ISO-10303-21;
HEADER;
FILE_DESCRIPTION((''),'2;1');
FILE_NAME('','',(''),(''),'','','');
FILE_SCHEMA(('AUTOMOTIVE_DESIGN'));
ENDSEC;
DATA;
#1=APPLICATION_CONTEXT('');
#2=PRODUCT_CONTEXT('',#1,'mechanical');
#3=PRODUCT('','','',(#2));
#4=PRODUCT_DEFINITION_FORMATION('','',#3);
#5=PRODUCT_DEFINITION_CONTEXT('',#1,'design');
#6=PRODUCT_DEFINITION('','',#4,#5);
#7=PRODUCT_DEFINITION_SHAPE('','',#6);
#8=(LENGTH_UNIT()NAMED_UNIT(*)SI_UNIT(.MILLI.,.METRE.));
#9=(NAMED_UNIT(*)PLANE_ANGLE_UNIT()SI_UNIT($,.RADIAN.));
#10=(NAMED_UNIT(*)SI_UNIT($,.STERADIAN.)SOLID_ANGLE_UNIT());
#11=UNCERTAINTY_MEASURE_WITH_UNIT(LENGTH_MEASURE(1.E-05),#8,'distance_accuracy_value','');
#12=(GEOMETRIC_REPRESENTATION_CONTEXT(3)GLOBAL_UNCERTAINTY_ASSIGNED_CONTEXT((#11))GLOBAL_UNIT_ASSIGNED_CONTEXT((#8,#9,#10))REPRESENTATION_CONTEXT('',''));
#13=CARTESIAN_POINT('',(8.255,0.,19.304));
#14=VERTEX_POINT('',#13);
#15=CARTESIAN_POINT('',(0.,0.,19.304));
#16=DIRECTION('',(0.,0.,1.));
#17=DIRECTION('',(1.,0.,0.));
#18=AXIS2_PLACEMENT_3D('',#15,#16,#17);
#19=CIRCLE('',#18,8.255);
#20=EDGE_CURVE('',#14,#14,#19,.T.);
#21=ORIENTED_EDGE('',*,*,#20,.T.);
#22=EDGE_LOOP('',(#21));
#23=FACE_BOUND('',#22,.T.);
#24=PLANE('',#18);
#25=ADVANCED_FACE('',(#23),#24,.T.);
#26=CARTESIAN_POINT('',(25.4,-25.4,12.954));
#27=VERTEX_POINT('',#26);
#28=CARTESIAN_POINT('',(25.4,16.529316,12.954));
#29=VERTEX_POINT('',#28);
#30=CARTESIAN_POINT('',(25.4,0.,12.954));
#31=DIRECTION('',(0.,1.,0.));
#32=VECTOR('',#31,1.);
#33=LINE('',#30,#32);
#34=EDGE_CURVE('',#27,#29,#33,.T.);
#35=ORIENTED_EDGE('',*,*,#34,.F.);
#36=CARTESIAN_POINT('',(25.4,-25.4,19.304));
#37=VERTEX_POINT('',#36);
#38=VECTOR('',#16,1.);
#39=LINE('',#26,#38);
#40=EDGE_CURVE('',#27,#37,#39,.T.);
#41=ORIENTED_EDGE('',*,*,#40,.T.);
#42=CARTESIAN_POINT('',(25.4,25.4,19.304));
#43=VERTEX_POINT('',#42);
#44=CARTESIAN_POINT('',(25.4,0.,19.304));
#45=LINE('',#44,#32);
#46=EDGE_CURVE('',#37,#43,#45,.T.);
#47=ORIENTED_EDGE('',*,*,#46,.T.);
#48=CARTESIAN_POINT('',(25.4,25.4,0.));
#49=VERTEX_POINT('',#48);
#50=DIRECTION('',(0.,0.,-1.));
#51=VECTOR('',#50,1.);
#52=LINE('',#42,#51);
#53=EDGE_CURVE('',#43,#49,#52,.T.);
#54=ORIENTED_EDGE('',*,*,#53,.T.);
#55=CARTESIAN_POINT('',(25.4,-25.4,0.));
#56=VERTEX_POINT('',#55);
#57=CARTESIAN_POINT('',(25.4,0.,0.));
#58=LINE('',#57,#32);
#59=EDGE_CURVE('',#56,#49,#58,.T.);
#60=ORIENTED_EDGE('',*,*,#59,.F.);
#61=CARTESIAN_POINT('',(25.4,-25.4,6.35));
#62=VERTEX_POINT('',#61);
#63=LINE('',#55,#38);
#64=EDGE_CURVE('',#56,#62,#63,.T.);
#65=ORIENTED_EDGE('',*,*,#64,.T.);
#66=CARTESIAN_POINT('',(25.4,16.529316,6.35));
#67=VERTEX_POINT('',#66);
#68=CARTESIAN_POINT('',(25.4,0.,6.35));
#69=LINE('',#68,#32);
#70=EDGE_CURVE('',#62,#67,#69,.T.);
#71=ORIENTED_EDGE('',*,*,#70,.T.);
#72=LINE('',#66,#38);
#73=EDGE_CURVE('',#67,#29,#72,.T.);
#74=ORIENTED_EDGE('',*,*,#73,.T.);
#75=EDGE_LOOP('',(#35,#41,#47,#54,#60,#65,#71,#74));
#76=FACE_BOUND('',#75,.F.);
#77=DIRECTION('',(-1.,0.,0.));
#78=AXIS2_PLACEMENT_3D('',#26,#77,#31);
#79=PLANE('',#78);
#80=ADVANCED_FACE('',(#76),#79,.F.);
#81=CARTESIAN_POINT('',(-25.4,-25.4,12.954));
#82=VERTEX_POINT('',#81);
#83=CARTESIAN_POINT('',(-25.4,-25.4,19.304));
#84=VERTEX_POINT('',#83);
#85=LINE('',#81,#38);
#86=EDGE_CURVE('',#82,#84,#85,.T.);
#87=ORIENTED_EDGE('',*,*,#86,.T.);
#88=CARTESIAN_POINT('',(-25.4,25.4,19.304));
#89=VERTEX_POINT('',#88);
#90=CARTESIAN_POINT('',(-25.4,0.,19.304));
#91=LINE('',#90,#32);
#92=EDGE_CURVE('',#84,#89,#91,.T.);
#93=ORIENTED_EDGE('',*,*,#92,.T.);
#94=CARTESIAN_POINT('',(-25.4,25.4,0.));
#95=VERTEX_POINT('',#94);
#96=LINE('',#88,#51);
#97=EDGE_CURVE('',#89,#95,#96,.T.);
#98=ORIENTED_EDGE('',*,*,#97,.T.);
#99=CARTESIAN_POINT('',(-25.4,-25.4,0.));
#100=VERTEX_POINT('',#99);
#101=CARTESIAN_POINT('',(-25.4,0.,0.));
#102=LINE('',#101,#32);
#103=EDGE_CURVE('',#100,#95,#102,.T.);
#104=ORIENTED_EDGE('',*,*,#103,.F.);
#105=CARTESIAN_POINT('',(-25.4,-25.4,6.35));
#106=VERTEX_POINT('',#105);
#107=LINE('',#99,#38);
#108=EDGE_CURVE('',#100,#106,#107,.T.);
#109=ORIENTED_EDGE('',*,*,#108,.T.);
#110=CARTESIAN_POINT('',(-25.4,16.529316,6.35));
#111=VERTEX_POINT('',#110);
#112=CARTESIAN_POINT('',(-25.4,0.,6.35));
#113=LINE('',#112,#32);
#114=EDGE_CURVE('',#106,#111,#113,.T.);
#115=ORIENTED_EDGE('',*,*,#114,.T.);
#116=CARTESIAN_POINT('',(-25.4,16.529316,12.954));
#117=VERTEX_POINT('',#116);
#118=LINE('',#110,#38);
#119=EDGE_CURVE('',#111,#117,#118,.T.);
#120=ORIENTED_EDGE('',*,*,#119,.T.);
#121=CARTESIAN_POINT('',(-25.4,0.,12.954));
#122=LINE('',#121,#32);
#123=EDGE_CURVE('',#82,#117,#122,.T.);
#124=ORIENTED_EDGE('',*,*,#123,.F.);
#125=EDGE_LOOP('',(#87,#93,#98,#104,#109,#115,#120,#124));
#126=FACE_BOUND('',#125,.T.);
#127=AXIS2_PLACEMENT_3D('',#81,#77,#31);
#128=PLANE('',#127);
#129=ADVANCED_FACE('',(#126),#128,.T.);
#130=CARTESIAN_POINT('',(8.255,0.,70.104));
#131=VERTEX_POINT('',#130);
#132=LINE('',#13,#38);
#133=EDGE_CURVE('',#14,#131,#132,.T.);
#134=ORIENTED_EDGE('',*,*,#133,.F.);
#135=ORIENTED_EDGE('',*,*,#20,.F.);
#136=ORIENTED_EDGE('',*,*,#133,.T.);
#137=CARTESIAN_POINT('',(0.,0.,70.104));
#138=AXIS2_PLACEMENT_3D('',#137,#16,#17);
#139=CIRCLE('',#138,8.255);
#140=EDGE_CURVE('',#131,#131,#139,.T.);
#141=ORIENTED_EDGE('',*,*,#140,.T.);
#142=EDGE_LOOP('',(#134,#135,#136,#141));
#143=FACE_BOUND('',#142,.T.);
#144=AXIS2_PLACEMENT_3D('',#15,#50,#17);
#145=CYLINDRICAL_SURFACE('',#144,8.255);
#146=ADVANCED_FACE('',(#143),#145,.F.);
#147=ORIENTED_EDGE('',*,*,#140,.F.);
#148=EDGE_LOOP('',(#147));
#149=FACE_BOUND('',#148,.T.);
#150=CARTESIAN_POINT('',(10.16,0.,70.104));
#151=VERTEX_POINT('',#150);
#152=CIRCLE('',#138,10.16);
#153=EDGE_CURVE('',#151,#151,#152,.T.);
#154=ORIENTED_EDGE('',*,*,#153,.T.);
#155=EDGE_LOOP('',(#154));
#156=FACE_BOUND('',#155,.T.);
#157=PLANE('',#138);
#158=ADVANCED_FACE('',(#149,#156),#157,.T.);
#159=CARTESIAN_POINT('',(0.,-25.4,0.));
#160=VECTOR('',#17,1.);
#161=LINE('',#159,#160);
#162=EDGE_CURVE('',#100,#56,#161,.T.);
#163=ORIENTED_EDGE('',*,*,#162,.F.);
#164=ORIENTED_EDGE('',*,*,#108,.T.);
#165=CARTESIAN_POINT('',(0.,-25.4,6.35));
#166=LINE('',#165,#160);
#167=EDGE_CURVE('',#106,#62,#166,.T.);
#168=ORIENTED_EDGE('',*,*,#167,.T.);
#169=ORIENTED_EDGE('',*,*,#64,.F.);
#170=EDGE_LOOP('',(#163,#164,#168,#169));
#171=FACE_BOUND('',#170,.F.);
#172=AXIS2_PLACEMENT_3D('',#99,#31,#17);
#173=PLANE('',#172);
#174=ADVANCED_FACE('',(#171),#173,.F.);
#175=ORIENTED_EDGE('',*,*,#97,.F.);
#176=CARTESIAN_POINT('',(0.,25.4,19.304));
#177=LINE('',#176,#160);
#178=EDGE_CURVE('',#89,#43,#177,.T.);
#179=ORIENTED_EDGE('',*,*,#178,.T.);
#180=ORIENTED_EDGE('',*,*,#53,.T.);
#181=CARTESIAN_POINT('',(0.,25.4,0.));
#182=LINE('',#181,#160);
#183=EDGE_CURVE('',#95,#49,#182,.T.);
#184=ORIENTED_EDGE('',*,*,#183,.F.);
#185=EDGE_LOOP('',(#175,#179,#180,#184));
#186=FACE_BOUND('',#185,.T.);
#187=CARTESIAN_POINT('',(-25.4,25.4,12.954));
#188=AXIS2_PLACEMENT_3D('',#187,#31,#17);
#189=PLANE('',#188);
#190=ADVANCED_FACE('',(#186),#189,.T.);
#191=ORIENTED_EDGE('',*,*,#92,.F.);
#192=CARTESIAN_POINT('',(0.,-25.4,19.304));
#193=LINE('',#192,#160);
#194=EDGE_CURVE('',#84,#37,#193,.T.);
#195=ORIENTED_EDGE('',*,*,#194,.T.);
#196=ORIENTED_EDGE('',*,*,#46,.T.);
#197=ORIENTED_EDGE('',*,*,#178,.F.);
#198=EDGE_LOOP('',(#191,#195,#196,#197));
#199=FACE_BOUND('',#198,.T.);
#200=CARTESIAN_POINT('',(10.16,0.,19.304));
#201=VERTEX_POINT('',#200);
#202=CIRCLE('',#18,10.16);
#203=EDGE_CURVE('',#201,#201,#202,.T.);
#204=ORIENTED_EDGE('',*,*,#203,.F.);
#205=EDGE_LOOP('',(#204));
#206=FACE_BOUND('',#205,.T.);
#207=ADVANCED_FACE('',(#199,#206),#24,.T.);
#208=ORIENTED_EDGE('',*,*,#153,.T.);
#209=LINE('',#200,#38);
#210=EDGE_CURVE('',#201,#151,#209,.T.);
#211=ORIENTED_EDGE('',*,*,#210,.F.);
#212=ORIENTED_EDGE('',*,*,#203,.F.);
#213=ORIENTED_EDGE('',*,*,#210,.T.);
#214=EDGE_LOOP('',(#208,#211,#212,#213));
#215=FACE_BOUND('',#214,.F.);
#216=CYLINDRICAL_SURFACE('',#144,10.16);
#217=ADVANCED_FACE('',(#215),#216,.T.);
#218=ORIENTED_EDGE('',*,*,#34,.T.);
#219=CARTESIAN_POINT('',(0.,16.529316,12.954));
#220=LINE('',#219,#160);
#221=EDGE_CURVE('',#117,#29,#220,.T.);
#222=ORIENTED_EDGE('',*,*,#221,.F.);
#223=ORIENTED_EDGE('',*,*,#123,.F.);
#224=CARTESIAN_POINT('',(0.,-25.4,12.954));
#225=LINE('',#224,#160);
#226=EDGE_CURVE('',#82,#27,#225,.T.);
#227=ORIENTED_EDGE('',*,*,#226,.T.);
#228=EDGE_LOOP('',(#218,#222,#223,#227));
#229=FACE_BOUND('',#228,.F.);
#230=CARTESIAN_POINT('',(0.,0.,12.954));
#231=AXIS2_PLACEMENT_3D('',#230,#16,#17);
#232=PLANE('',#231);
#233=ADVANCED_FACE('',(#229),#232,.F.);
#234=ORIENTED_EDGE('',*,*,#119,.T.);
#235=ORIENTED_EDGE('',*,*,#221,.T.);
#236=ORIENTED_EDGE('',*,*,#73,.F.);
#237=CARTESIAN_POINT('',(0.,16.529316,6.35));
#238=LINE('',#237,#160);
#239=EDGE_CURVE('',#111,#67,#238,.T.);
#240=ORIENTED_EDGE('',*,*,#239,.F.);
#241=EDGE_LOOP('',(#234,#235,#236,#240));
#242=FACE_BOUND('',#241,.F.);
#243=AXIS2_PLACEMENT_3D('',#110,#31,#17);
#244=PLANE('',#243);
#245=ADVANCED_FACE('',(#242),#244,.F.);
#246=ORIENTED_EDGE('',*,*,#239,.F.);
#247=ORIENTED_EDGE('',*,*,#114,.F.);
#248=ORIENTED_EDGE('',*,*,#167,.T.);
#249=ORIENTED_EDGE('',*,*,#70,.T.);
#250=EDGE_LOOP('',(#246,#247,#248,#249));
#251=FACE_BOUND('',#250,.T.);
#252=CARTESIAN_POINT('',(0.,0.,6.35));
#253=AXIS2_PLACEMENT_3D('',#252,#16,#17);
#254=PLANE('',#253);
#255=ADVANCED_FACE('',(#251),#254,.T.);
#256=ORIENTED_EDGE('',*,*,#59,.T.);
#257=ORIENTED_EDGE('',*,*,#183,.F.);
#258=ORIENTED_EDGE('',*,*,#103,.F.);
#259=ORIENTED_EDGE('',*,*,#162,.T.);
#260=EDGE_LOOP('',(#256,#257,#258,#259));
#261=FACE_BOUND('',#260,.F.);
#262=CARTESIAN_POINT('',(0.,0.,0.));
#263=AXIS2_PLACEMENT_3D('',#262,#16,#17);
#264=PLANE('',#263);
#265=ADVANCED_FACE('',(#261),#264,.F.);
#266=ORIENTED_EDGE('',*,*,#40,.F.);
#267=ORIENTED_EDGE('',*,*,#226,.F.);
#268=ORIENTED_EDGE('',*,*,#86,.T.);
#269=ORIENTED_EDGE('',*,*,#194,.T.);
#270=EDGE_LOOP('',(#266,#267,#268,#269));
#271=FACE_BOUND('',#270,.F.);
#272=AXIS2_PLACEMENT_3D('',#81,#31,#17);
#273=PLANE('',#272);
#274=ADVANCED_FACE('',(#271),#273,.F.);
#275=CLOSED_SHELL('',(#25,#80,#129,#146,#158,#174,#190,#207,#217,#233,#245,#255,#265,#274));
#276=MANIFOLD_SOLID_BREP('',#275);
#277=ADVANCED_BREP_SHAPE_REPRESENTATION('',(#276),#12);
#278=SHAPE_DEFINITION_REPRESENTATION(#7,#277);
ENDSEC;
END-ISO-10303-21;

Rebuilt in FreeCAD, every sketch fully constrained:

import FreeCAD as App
import Part
import Sketcher
from FreeCAD import Vector
Q = App.Units.Quantity


def add_polygon(sketch, points):
    """Adds a closed chain of lines whose ends are joined by coincident constraints."""
    first, n = sketch.GeometryCount, len(points)
    for a, b in zip(points, points[1:] + points[:1]):
        sketch.addGeometry(Part.LineSegment(App.Vector(*a, 0), App.Vector(*b, 0)), False)
    for i in range(n):
        sketch.addConstraint(Sketcher.Constraint("Coincident", first + i, 2, first + (i + 1) % n, 1))

doc = App.newDocument("Part")
body = doc.addObject("PartDesign::Body", "Body")

# Sketch on XY plane
sketch1 = body.newObject("Sketcher::SketchObject", "Sketch")
sketch1.AttachmentSupport = (doc.getObject("XY_Plane"), [""])
sketch1.MapMode = "FlatFace"
add_polygon(sketch1, [(-25.4, 25.4), (-25.4, -25.4), (25.4, -25.4), (25.4, 25.4)])  # lines 0-3
sketch1.addConstraint(Sketcher.Constraint("Vertical", 0))
sketch1.addConstraint(Sketcher.Constraint("Horizontal", 1))
sketch1.addConstraint(Sketcher.Constraint("Vertical", 2))
sketch1.addConstraint(Sketcher.Constraint("Horizontal", 3))
sketch1.addConstraint(Sketcher.Constraint("Symmetric", 0, 2, 2, 2, -1, 1))
sketch1.addConstraint(Sketcher.Constraint("Equal", 3, 0))
sketch1.addConstraint(Sketcher.Constraint("DistanceX", 1, 1, 1, 2, Q("2 in")))
pad1 = body.newObject("PartDesign::Pad", "Pad")
pad1.Profile = sketch1
pad1.Length = Q("0.25 in")

# Sketch on XY plane
sketch2 = body.newObject("Sketcher::SketchObject", "Sketch001")
sketch2.AttachmentSupport = (doc.getObject("XY_Plane"), [""])
sketch2.MapMode = "FlatFace"
sketch2.AttachmentOffset = App.Placement(Vector(0, 0, 0.25 * 25.4), App.Rotation())
add_polygon(sketch2, [(-25.4, 25.4), (-25.4, 16.529316), (25.4, 16.529316), (25.4, 25.4)])  # lines 0-3
sketch2.addConstraint(Sketcher.Constraint("Vertical", 0))
sketch2.addConstraint(Sketcher.Constraint("Horizontal", 1))
sketch2.addConstraint(Sketcher.Constraint("Vertical", 2))
sketch2.addConstraint(Sketcher.Constraint("Horizontal", 3))
sketch2.addConstraint(Sketcher.Constraint("DistanceX", 1, 1, 1, 2, Q("2 in")))
sketch2.addConstraint(Sketcher.Constraint("DistanceX", 0, 2, -1, 1, Q("1 in")))
sketch2.addConstraint(Sketcher.Constraint("DistanceY", -1, 1, 2, 2, Q("1 in")))
sketch2.addConstraint(Sketcher.Constraint("DistanceY", 0, 2, 0, 1, Q("8.870684 mm")))
pad2 = body.newObject("PartDesign::Pad", "Pad001")
pad2.Profile = sketch2
pad2.Length = Q("0.26 in")

# Sketch on XY plane
sketch3 = body.newObject("Sketcher::SketchObject", "Sketch002")
sketch3.AttachmentSupport = (doc.getObject("XY_Plane"), [""])
sketch3.MapMode = "FlatFace"
sketch3.AttachmentOffset = App.Placement(Vector(0, 0, 0.51 * 25.4), App.Rotation())
add_polygon(sketch3, [(-25.4, 25.4), (-25.4, -25.4), (25.4, -25.4), (25.4, 25.4)])  # lines 0-3
sketch3.addConstraint(Sketcher.Constraint("Vertical", 0))
sketch3.addConstraint(Sketcher.Constraint("Horizontal", 1))
sketch3.addConstraint(Sketcher.Constraint("Vertical", 2))
sketch3.addConstraint(Sketcher.Constraint("Horizontal", 3))
sketch3.addConstraint(Sketcher.Constraint("Symmetric", 0, 2, 2, 2, -1, 1))
sketch3.addConstraint(Sketcher.Constraint("Equal", 3, 0))
sketch3.addConstraint(Sketcher.Constraint("DistanceX", 1, 1, 1, 2, Q("2 in")))
pad3 = body.newObject("PartDesign::Pad", "Pad002")
pad3.Profile = sketch3
pad3.Length = Q("0.25 in")

# Sketch on XY plane
sketch4 = body.newObject("Sketcher::SketchObject", "Sketch003")
sketch4.AttachmentSupport = (doc.getObject("XY_Plane"), [""])
sketch4.MapMode = "FlatFace"
sketch4.AttachmentOffset = App.Placement(Vector(0, 0, 0.76 * 25.4), App.Rotation())
sketch4.addGeometry(Part.Circle(Vector(0, 0, 0), Vector(0, 0, 1), 10.16), False)
sketch4.addGeometry(Part.Circle(Vector(0, 0, 0), Vector(0, 0, 1), 8.255), False)
sketch4.addConstraint(Sketcher.Constraint("Coincident", 0, 3, -1, 1))
sketch4.addConstraint(Sketcher.Constraint("Coincident", 1, 3, -1, 1))
sketch4.addConstraint(Sketcher.Constraint("Diameter", 0, Q("0.8 in")))
sketch4.addConstraint(Sketcher.Constraint("Diameter", 1, Q("0.65 in")))
pad4 = body.newObject("PartDesign::Pad", "Pad003")
pad4.Profile = sketch4
pad4.Length = Q("2 in")

doc.recompute()
